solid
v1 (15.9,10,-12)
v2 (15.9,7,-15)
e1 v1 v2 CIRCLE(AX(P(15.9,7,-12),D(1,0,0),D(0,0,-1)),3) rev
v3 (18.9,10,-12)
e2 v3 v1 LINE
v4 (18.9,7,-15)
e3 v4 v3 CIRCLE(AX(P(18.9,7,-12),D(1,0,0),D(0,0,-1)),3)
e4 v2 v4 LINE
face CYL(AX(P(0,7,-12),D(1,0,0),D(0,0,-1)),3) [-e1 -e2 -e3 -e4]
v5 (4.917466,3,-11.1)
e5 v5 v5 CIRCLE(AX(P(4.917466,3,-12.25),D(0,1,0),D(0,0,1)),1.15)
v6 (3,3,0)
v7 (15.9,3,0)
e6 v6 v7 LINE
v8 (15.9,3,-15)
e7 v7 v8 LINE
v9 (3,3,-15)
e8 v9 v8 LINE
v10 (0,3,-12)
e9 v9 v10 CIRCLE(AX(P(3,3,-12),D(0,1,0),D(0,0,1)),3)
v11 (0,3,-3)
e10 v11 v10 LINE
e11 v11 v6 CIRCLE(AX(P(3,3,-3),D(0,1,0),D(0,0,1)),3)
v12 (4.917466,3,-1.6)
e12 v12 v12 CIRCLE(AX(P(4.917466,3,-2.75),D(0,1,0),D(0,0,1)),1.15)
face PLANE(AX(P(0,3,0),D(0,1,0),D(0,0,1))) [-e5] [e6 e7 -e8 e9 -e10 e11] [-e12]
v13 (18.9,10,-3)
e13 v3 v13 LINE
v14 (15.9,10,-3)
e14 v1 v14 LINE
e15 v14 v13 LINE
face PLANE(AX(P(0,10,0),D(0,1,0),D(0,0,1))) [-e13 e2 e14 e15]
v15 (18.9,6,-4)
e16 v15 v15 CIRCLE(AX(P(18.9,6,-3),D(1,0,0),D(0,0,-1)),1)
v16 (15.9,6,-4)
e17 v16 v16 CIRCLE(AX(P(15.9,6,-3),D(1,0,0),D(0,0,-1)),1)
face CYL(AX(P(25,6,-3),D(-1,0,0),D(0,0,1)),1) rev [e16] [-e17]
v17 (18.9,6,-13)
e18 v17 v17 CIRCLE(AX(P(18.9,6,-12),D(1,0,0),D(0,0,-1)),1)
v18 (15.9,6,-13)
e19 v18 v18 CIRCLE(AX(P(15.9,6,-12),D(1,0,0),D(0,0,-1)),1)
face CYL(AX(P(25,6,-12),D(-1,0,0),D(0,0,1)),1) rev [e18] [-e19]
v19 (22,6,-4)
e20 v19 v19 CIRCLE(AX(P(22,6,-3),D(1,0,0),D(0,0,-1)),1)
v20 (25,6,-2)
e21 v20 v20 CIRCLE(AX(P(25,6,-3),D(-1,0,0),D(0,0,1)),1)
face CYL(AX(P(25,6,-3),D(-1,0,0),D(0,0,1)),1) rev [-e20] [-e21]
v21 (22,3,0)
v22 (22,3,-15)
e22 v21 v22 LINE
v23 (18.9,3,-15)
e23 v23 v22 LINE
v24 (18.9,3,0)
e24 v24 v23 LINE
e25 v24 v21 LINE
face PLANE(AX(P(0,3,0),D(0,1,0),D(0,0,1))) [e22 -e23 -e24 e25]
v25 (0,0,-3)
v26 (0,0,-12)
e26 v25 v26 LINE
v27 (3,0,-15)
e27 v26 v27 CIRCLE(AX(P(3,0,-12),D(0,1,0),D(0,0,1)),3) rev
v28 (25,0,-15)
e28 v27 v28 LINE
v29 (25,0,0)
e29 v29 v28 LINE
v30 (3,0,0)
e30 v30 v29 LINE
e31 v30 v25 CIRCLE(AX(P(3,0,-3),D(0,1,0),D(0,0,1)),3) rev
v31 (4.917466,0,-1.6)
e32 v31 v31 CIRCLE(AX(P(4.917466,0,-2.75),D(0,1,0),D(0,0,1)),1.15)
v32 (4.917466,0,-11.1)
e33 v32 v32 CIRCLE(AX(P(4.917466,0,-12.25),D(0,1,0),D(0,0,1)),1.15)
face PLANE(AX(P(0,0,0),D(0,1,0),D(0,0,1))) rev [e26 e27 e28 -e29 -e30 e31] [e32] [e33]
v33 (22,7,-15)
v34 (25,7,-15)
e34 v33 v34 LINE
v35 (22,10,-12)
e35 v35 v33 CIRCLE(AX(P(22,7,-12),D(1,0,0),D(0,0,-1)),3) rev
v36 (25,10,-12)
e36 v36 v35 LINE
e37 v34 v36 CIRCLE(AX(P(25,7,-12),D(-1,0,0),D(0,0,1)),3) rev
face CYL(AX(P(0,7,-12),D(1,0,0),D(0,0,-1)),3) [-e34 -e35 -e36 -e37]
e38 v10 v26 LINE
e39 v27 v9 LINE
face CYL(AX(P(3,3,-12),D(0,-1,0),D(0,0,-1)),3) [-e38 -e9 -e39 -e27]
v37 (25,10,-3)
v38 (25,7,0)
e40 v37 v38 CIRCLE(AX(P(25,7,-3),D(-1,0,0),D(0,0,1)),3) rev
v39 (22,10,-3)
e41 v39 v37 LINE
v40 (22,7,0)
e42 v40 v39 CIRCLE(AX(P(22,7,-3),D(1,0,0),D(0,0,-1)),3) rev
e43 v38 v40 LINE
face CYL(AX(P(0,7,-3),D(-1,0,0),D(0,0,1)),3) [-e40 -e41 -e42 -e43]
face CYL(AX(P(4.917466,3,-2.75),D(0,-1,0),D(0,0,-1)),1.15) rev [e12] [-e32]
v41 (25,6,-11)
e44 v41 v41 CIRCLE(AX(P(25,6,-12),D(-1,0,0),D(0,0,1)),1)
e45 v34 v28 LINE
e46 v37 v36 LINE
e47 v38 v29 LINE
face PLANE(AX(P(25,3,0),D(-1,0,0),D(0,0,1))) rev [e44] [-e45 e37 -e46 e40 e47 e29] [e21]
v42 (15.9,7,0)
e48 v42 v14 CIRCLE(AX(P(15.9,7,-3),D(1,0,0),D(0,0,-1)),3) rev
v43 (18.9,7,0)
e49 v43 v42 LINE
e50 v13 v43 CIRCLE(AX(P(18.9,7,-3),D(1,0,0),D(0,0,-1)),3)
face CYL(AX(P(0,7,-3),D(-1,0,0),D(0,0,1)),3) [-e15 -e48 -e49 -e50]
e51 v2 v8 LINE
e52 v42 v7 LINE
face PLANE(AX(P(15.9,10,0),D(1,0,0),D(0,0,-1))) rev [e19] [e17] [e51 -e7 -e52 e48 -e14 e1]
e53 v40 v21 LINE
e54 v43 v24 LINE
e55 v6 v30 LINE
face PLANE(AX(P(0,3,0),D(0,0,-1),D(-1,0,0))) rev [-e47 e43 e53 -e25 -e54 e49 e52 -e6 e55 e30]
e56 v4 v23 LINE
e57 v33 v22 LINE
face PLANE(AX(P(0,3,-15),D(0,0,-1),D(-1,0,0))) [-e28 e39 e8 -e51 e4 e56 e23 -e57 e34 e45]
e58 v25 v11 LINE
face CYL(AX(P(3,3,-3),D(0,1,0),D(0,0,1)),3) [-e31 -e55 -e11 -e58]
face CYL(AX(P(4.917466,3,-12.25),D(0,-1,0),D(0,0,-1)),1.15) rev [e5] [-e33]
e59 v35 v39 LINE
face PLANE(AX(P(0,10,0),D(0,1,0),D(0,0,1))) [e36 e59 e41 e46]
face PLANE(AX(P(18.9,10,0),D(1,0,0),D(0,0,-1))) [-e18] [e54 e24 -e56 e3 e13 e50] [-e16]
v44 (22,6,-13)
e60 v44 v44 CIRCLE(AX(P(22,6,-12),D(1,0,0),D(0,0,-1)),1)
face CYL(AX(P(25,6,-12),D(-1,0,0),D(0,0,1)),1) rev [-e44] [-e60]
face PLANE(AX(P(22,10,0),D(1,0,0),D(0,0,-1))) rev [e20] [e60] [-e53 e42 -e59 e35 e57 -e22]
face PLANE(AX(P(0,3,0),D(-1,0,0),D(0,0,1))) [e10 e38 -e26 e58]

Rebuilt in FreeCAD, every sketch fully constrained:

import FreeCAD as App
import Part
import Sketcher

V = App.Vector


def edges_at(feature, points):
    """Names of the edges that pass closest to the given points."""
    edges = feature.Shape.Edges
    near = lambda p: min(range(len(edges)), key=lambda i: edges[i].distToShape(Part.Vertex(*p))[0])
    return sorted({f"Edge{near(p) + 1}" for p in points})

doc = App.newDocument("Part")
body = doc.addObject("PartDesign::Body", "Body")

# Sketch on XZ plane
sketch1 = doc.addObject("Sketcher::SketchObject", "Sketch")
body.addObject(sketch1)
sketch1.AttachmentSupport = (doc.XZ_Plane, [""])
sketch1.MapMode = "FlatFace"
sketch1.addGeometry([
    Part.LineSegment(V(0, -15, 0), V(0, 0, 0)),  # 0
    Part.LineSegment(V(0, 0, 0), V(25, 0, 0)),  # 1
    Part.LineSegment(V(25, 0, 0), V(25, -15, 0)),  # 2
    Part.LineSegment(V(25, -15, 0), V(0, -15, 0)),  # 3
    Part.Circle(V(4.9, -2.8, 0), V(0, 0, 1), 1.1),  # 4
    Part.Circle(V(4.9, -12.2, 0), V(0, 0, 1), 1.1),  # 5
], False)
sketch1.addConstraint([
    Sketcher.Constraint("Coincident", 0, 2, 1, 1),
    Sketcher.Constraint("Coincident", 1, 2, 2, 1),
    Sketcher.Constraint("Coincident", 2, 2, 3, 1),
    Sketcher.Constraint("Coincident", 3, 2, 0, 1),
    Sketcher.Constraint("Vertical", 0),
    Sketcher.Constraint("Horizontal", 1),
    Sketcher.Constraint("Vertical", 2),
    Sketcher.Constraint("Horizontal", 3),
    Sketcher.Constraint("Coincident", 0, 2, -1, 1),
    Sketcher.Constraint("Equal", 4, 5),
    Sketcher.Constraint("Vertical", 4, 3, 5, 3),
    Sketcher.Constraint("Diameter", 4, 2.3),
    Sketcher.Constraint("DistanceX", 1, 1, 1, 2, 25.0),
    Sketcher.Constraint("DistanceY", 0, 1, 0, 2, 15.0),
    Sketcher.Constraint("DistanceY", 5, 3, 4, 3, 9.5),
    Sketcher.Constraint("DistanceY", 4, 3, -1, 1, 2.75),
    Sketcher.Constraint("DistanceX", -1, 1, 4, 3, 4.917466),
])
pad1 = doc.addObject("PartDesign::Pad", "Pad")
body.addObject(pad1)
pad1.Profile = sketch1
pad1.Length = 3
pad1.Reversed = True
doc.recompute()

fillet = doc.addObject("PartDesign::Fillet", "Fillet")
body.addObject(fillet)
fillet.Base = (pad1, edges_at(pad1, [
    (0, 1.5, 0),
    (0, 1.5, -15),
    (25, 1.5, -15),
    (25, 1.5, 0),
]))
fillet.Radius = 3

# Sketch on XZ plane
sketch2 = doc.addObject("Sketcher::SketchObject", "Sketch001")
body.addObject(sketch2)
sketch2.AttachmentSupport = (doc.XZ_Plane, [""])
sketch2.MapMode = "FlatFace"
sketch2.addGeometry([
    Part.LineSegment(V(15.9, -15, 0), V(15.9, 0, 0)),  # 0
    Part.LineSegment(V(15.9, 0, 0), V(18.9, 0, 0)),  # 1
    Part.LineSegment(V(18.9, 0, 0), V(18.9, -15, 0)),  # 2
    Part.LineSegment(V(18.9, -15, 0), V(15.9, -15, 0)),  # 3
    Part.LineSegment(V(22, -15, 0), V(22, 0, 0)),  # 4
    Part.LineSegment(V(22, 0, 0), V(25, 0, 0)),  # 5
    Part.LineSegment(V(25, 0, 0), V(25, -15, 0)),  # 6
    Part.LineSegment(V(25, -15, 0), V(22, -15, 0)),  # 7
], False)
sketch2.addConstraint([
    Sketcher.Constraint("Coincident", 0, 2, 1, 1),
    Sketcher.Constraint("Coincident", 1, 2, 2, 1),
    Sketcher.Constraint("Coincident", 2, 2, 3, 1),
    Sketcher.Constraint("Coincident", 3, 2, 0, 1),
    Sketcher.Constraint("Coincident", 4, 2, 5, 1),
    Sketcher.Constraint("Coincident", 5, 2, 6, 1),
    Sketcher.Constraint("Coincident", 6, 2, 7, 1),
    Sketcher.Constraint("Coincident", 7, 2, 4, 1),
    Sketcher.Constraint("Vertical", 0),
    Sketcher.Constraint("Horizontal", 1),
    Sketcher.Constraint("Vertical", 2),
    Sketcher.Constraint("Horizontal", 3),
    Sketcher.Constraint("Vertical", 4),
    Sketcher.Constraint("Horizontal", 5),
    Sketcher.Constraint("Vertical", 6),
    Sketcher.Constraint("Horizontal", 7),
    Sketcher.Constraint("PointOnObject", 0, 2, -1),
    Sketcher.Constraint("PointOnObject", 4, 2, -1),
    Sketcher.Constraint("Horizontal", 3, 2, 6, 2),
    Sketcher.Constraint("Equal", 3, 5),
    Sketcher.Constraint("DistanceX", 1, 1, 1, 2, 3.0),
    Sketcher.Constraint("DistanceY", 0, 1, 0, 2, 15.0),
    Sketcher.Constraint("DistanceX", -1, 1, 4, 2, 22.0),
    Sketcher.Constraint("DistanceX", -1, 1, 0, 2, 15.9),
])
pad2 = doc.addObject("PartDesign::Pad", "Pad001")
body.addObject(pad2)
pad2.Profile = sketch2
pad2.Length = 10
pad2.Reversed = True

# Sketch on YZ plane
sketch3 = doc.addObject("Sketcher::SketchObject", "Sketch002")
body.addObject(sketch3)
sketch3.AttachmentSupport = (doc.YZ_Plane, [""])
sketch3.MapMode = "FlatFace"
sketch3.AttachmentOffset = App.Placement(V(0, 0, 15.9), App.Rotation())
sketch3.addGeometry([
    Part.Circle(V(6, -12, 0), V(0, 0, 1), 1),
    Part.Circle(V(6, -3, 0), V(0, 0, 1), 1),
], False)
sketch3.addConstraint([
    Sketcher.Constraint("Equal", 0, 1),
    Sketcher.Constraint("Vertical", 0, 3, 1, 3),
    Sketcher.Constraint("Diameter", 0, 2.0),
    Sketcher.Constraint("DistanceX", -1, 1, 0, 3, 6.0),
    Sketcher.Constraint("DistanceY", 0, 3, -1, 1, 12.0),
    Sketcher.Constraint("DistanceY", 1, 3, -1, 1, 3.0),
])
pocket1 = doc.addObject("PartDesign::Pocket", "Pocket")
body.addObject(pocket1)
pocket1.Profile = sketch3
pocket1.Type = "ThroughAll"
pocket1.Midplane = True
doc.recompute()

fillet2 = doc.addObject("PartDesign::Fillet", "Fillet001")
body.addObject(fillet2)
fillet2.Base = (pocket1, edges_at(pocket1, [
    (17.4, 10, -15),
    (17.4, 10, 0),
    (23.5, 10, -15),
    (23.5, 10, 0),
]))
fillet2.Radius = 3

doc.recompute()
